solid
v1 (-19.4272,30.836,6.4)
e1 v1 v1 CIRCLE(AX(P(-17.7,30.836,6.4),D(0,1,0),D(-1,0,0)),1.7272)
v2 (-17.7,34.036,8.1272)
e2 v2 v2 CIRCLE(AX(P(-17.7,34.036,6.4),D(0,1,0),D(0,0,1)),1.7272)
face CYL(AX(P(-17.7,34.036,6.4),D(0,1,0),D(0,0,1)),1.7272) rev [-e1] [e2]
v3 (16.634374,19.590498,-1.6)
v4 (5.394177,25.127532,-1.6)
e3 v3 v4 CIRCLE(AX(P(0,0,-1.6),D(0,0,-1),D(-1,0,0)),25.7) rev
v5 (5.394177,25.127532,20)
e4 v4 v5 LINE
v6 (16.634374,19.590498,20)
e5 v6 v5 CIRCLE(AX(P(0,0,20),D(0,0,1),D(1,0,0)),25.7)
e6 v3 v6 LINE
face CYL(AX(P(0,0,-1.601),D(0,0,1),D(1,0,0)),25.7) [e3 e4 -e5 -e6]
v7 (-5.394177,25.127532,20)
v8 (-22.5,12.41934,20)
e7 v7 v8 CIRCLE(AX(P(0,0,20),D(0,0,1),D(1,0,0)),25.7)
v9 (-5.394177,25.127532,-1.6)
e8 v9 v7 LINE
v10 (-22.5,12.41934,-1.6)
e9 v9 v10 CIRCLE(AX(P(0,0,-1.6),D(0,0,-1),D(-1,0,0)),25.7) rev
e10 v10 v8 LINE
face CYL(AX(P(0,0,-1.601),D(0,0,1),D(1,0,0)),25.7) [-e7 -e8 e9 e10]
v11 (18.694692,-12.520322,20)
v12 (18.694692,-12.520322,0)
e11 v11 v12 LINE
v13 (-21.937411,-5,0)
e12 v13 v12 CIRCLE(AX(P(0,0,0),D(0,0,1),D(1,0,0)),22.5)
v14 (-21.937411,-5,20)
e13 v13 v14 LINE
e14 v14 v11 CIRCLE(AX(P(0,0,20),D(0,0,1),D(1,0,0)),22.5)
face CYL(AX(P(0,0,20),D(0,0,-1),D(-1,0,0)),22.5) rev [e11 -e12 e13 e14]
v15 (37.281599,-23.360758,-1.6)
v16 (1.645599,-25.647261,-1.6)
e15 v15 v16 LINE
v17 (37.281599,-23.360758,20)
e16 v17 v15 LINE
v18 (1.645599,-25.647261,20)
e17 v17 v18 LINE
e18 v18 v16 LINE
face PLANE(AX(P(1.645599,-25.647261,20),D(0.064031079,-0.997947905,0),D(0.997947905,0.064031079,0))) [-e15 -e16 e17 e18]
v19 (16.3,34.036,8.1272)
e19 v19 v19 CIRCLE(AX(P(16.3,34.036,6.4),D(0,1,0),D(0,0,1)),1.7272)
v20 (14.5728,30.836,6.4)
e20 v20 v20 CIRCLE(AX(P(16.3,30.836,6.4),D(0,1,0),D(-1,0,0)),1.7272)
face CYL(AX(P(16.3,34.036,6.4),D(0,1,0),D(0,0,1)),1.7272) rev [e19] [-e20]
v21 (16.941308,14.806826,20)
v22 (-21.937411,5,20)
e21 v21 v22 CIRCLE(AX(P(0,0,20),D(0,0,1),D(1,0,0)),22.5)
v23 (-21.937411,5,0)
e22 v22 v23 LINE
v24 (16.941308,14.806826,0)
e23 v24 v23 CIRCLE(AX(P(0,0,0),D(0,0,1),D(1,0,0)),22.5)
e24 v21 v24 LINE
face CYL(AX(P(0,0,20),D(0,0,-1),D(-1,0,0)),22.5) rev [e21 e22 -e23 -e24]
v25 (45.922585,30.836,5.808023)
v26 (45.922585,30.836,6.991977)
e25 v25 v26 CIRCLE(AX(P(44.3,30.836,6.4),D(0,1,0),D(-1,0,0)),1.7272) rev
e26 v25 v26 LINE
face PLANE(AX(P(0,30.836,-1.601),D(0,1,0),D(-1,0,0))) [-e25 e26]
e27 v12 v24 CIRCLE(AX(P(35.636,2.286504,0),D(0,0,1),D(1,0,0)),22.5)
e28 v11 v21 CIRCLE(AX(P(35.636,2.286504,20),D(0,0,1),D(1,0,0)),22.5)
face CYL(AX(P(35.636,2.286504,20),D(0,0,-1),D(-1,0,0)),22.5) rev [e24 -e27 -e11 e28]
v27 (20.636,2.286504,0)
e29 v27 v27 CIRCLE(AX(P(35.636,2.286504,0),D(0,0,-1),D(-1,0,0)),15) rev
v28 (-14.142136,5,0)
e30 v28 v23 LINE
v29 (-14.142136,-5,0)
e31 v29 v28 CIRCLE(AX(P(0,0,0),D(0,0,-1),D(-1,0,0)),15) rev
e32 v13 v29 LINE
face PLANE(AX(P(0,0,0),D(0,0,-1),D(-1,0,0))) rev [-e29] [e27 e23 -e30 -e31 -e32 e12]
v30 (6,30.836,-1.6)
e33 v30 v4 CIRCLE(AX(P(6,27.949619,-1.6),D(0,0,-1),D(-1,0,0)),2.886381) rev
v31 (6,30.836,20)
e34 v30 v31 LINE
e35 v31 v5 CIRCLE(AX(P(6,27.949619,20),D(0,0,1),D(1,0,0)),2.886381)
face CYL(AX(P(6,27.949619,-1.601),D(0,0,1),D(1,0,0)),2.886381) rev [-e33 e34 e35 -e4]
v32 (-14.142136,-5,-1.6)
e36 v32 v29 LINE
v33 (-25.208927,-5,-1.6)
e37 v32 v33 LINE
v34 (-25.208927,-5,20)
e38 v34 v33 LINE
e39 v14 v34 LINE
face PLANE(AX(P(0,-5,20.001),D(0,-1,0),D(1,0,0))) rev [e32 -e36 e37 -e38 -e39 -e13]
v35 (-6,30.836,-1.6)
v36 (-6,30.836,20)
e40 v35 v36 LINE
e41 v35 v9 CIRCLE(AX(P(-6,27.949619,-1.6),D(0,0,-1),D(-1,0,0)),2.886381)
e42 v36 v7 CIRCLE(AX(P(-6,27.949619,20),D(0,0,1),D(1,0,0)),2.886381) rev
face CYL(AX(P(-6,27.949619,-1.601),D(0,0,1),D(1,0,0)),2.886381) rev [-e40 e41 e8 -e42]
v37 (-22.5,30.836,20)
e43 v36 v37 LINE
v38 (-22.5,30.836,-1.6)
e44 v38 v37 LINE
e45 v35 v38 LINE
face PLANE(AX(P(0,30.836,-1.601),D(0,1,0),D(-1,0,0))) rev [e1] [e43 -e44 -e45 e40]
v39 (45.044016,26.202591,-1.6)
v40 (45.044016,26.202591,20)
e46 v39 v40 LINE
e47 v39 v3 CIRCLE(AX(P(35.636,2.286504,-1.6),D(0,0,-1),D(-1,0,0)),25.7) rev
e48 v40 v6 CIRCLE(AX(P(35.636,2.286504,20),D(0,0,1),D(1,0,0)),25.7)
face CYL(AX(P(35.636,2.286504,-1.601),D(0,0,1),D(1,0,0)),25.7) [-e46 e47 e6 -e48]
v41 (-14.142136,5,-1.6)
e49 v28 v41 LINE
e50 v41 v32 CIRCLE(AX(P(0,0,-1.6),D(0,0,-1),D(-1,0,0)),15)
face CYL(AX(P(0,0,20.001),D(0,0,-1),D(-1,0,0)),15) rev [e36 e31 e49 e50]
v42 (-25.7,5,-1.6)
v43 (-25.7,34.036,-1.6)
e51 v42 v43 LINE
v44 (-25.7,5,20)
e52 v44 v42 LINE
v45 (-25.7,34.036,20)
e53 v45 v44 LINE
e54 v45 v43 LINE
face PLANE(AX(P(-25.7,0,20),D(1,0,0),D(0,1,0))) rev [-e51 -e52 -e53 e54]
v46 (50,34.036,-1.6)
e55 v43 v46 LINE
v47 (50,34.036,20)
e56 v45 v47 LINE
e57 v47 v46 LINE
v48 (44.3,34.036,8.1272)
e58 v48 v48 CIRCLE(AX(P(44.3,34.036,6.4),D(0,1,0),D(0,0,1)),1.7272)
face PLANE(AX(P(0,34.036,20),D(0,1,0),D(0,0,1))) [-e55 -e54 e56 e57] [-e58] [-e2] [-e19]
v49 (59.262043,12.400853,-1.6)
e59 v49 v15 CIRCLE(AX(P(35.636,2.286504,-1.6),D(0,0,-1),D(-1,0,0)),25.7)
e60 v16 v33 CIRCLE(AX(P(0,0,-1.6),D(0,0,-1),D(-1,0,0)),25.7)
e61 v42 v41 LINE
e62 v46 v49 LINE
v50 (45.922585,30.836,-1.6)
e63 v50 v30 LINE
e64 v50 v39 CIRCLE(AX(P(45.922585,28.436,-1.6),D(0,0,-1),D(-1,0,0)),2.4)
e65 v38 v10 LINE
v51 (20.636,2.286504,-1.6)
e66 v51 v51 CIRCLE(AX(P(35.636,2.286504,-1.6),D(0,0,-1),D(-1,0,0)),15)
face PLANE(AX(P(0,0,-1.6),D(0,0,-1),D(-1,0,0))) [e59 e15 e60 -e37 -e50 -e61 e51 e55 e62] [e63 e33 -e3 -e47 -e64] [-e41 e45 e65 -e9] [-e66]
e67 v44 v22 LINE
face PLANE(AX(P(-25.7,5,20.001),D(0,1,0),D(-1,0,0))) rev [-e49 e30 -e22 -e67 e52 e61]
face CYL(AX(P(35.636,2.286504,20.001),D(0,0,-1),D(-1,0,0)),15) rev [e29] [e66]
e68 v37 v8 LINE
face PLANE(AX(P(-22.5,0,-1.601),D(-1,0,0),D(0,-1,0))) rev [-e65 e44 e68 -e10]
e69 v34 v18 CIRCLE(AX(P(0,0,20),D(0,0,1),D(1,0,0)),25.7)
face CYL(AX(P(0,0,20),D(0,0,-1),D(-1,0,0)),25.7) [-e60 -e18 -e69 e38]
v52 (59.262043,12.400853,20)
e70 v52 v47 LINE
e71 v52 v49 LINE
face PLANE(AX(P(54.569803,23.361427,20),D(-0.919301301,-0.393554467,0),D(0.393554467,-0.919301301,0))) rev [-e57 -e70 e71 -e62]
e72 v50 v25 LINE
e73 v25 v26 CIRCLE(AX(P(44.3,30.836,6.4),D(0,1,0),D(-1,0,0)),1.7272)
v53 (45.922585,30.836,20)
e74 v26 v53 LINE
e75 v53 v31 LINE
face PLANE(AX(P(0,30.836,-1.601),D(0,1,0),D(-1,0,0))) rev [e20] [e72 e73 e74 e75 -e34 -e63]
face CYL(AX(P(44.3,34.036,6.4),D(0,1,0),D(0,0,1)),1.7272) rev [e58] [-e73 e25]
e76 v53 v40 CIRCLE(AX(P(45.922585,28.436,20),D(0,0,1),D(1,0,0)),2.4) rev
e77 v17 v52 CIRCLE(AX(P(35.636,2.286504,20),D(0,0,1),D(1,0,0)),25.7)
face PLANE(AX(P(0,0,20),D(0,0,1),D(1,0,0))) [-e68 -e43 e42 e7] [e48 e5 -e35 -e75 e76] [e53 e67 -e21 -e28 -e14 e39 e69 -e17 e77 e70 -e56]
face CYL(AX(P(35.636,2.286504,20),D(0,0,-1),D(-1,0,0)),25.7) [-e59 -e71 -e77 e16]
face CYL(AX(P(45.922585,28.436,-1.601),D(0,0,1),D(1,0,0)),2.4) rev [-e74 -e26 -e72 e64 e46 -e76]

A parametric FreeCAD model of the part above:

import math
import FreeCAD as App
import Part
import Sketcher

doc = App.newDocument("Part")
body = doc.addObject("PartDesign::Body", "Body")

# Sketch on XY plane
sketch1 = body.newObject("Sketcher::SketchObject", "Sketch")
sketch1.AttachmentSupport = (doc.getObject("XY_Plane"), [""])
sketch1.MapMode = "FlatFace"
sketch1.addGeometry([
    Part.LineSegment(App.Vector(2, -26, 0), App.Vector(37, -23, 0)),  # 0
    Part.ArcOfCircle(Part.Circle(App.Vector(36, 2, 0), App.Vector(0, 0, 1), 26), math.radians(-86), math.radians(23)),  # 1
    Part.LineSegment(App.Vector(59, 12, 0), App.Vector(50, 34, 0)),  # 2
    Part.LineSegment(App.Vector(50, 34, 0), App.Vector(-26, 34, 0)),  # 3
    Part.LineSegment(App.Vector(-26, 34, 0), App.Vector(-26, 0, 0)),  # 4
    Part.ArcOfCircle(Part.Circle(App.Vector(0, 0, 0), App.Vector(0, 0, 1), 26), math.radians(-180), math.radians(-86)),  # 5
    Part.ArcOfCircle(Part.Circle(App.Vector(36, 2, 0), App.Vector(0, 0, 1), 22), math.radians(-139), math.radians(146)),  # 6
    Part.ArcOfCircle(Part.Circle(App.Vector(0, 0, 0), App.Vector(0, 0, 1), 22), math.radians(41), math.radians(326)),  # 7
], False)
sketch1.addConstraint([
    Sketcher.Constraint("Tangent", 0, 2, 1, 1),
    Sketcher.Constraint("Tangent", 1, 2, 2, 1),
    Sketcher.Constraint("Coincident", 2, 2, 3, 1),
    Sketcher.Constraint("Coincident", 3, 2, 4, 1),
    Sketcher.Constraint("Tangent", 4, 2, 5, 1),
    Sketcher.Constraint("Tangent", 5, 2, 0, 1),
    Sketcher.Constraint("Coincident", 6, 1, 7, 2),
    Sketcher.Constraint("Coincident", 7, 1, 6, 2),
    Sketcher.Constraint("Horizontal", 3),
    Sketcher.Constraint("Vertical", 4),
    Sketcher.Constraint("Coincident", 5, 3, -1, 1),
    Sketcher.Constraint("Coincident", 7, 3, -1, 1),
    Sketcher.Constraint("Coincident", 6, 3, 1, 3),
    Sketcher.Constraint("Equal", 1, 5),
    Sketcher.Constraint("Equal", 6, 7),
    Sketcher.Constraint("Radius", 1, 25.7),
    Sketcher.Constraint("Radius", 6, 22.5),
    Sketcher.Constraint("DistanceX", 3, 2, 3, 1, 75.7),
    Sketcher.Constraint("DistanceY", 4, 2, 4, 1, 34.036),
    Sketcher.Constraint("DistanceX", -1, 1, 1, 3, 35.636),
    Sketcher.Constraint("DistanceX", -1, 1, 0, 2, 37.281599),
])
pad1 = body.newObject("PartDesign::Pad", "Pad")
pad1.Profile = sketch1
pad1.Length = 20

# Sketch on XY plane
sketch2 = body.newObject("Sketcher::SketchObject", "Sketch001")
sketch2.AttachmentSupport = (doc.getObject("XY_Plane"), [""])
sketch2.MapMode = "FlatFace"
sketch2.AttachmentOffset = App.Placement(App.Vector(0, 0, -1.6), App.Rotation())
sketch2.addGeometry([
    Part.LineSegment(App.Vector(-26, 0, 0), App.Vector(-26, 34, 0)),  # 0
    Part.LineSegment(App.Vector(-26, 34, 0), App.Vector(50, 34, 0)),  # 1
    Part.LineSegment(App.Vector(50, 34, 0), App.Vector(59, 12, 0)),  # 2
    Part.ArcOfCircle(Part.Circle(App.Vector(36, 2, 0), App.Vector(0, 0, 1), 26), math.radians(-86), math.radians(23)),  # 3
    Part.LineSegment(App.Vector(37, -23, 0), App.Vector(2, -26, 0)),  # 4
    Part.ArcOfCircle(Part.Circle(App.Vector(0, 0, 0), App.Vector(0, 0, 1), 26), math.radians(-180), math.radians(-86)),  # 5
], False)
sketch2.addConstraint([
    Sketcher.Constraint("Coincident", 0, 2, 1, 1),
    Sketcher.Constraint("Coincident", 1, 2, 2, 1),
    Sketcher.Constraint("Tangent", 2, 2, 3, 2),
    Sketcher.Constraint("Tangent", 3, 1, 4, 1),
    Sketcher.Constraint("Tangent", 4, 2, 5, 2),
    Sketcher.Constraint("Tangent", 5, 1, 0, 1),
    Sketcher.Constraint("Vertical", 0),
    Sketcher.Constraint("Horizontal", 1),
    Sketcher.Constraint("Coincident", 5, 3, -1, 1),
    Sketcher.Constraint("Equal", 3, 5),
    Sketcher.Constraint("Radius", 3, 25.7),
    Sketcher.Constraint("DistanceX", 1, 1, 1, 2, 75.7),
    Sketcher.Constraint("DistanceY", 0, 1, 0, 2, 34.036),
    Sketcher.Constraint("DistanceX", -1, 1, 3, 3, 35.636),
    Sketcher.Constraint("DistanceX", -1, 1, 3, 1, 37.281599),
])
pad2 = body.newObject("PartDesign::Pad", "Pad001")
pad2.Profile = sketch2
pad2.Length = 1.6

# Sketch on XY plane
sketch3 = body.newObject("Sketcher::SketchObject", "Sketch002")
sketch3.AttachmentSupport = (doc.getObject("XY_Plane"), [""])
sketch3.MapMode = "FlatFace"
sketch3.AttachmentOffset = App.Placement(App.Vector(0, 0, 20), App.Rotation())
sketch3.addGeometry([
    Part.ArcOfCircle(Part.Circle(App.Vector(0, 0, 0), App.Vector(0, 0, 1), 25.7), math.radians(102), math.radians(151)),
    Part.ArcOfCircle(Part.Circle(App.Vector(-6, 27.9, 0), App.Vector(0, 0, 1), 2.9), math.radians(-78), math.radians(90)),
    Part.LineSegment(App.Vector(-6, 30.8, 0), App.Vector(-22.5, 30.8, 0)),
    Part.LineSegment(App.Vector(-22.5, 30.8, 0), App.Vector(-22.5, 12.4, 0)),
], False)
sketch3.addConstraint([
    Sketcher.Constraint("Tangent", 0, 1, 1, 1),
    Sketcher.Constraint("Tangent", 1, 2, 2, 1),
    Sketcher.Constraint("Coincident", 2, 2, 3, 1),
    Sketcher.Constraint("Coincident", 3, 2, 0, 2),
    Sketcher.Constraint("Horizontal", 2),
    Sketcher.Constraint("Vertical", 3),
    Sketcher.Constraint("Coincident", 0, 3, -1, 1),
    Sketcher.Constraint("Radius", 0, 25.7),
    Sketcher.Constraint("DistanceX", 2, 2, 2, 1, 16.5),
    Sketcher.Constraint("DistanceX", 1, 3, -1, 1, 6.0),
    Sketcher.Constraint("Radius", 1, 2.886381),
])
pocket1 = body.newObject("PartDesign::Pocket", "Pocket")
pocket1.Profile = sketch3
pocket1.Type = "UpToFirst"

# Sketch on XY plane
sketch4 = body.newObject("Sketcher::SketchObject", "Sketch003")
sketch4.AttachmentSupport = (doc.getObject("XY_Plane"), [""])
sketch4.MapMode = "FlatFace"
sketch4.AttachmentOffset = App.Placement(App.Vector(0, 0, 20), App.Rotation())
sketch4.addGeometry([
    Part.ArcOfCircle(Part.Circle(App.Vector(0, 0, 0), App.Vector(0, 0, 1), 25.7), math.radians(50), math.radians(78)),  # 0
    Part.ArcOfCircle(Part.Circle(App.Vector(35.6, 2.3, 0), App.Vector(0, 0, 1), 25.7), math.radians(69), math.radians(138)),  # 1
    Part.ArcOfCircle(Part.Circle(App.Vector(45.9, 28.4, 0), App.Vector(0, 0, 1), 2.4), math.radians(-111), math.radians(90)),  # 2
    Part.LineSegment(App.Vector(45.9, 30.8, 0), App.Vector(6, 30.8, 0)),  # 3
    Part.ArcOfCircle(Part.Circle(App.Vector(6, 27.9, 0), App.Vector(0, 0, 1), 2.9), math.radians(90), math.radians(258)),  # 4
], False)
sketch4.addConstraint([
    Sketcher.Constraint("Coincident", 0, 1, 1, 2),
    Sketcher.Constraint("Tangent", 1, 1, 2, 1),
    Sketcher.Constraint("Tangent", 2, 2, 3, 1),
    Sketcher.Constraint("Tangent", 3, 2, 4, 1),
    Sketcher.Constraint("Tangent", 4, 2, 0, 2),
    Sketcher.Constraint("Horizontal", 3),
    Sketcher.Constraint("Coincident", 0, 3, -1, 1),
    Sketcher.Constraint("Equal", 0, 1),
    Sketcher.Constraint("Radius", 0, 25.7),
    Sketcher.Constraint("Radius", 2, 2.4),
    Sketcher.Constraint("DistanceX", -1, 1, 4, 3, 6.0),
    Sketcher.Constraint("Radius", 4, 2.886381),
    Sketcher.Constraint("DistanceX", -1, 1, 1, 3, 35.636),
    Sketcher.Constraint("DistanceX", 3, 2, 3, 1, 39.922585),
])
pocket2 = body.newObject("PartDesign::Pocket", "Pocket001")
pocket2.Profile = sketch4
pocket2.Type = "UpToFirst"

# Sketch on XY plane
sketch5 = body.newObject("Sketcher::SketchObject", "Sketch004")
sketch5.AttachmentSupport = (doc.getObject("XY_Plane"), [""])
sketch5.MapMode = "FlatFace"
sketch5.AttachmentOffset = App.Placement(App.Vector(0, 0, -1.6), App.Rotation())
sketch5.addGeometry([
    Part.LineSegment(App.Vector(-26, 5, 0), App.Vector(0, 5, 0)),  # 0
    Part.ArcOfCircle(Part.Circle(App.Vector(0, 0, 0), App.Vector(0, 0, 1), 5), math.radians(-90), math.radians(90)),  # 1
    Part.LineSegment(App.Vector(0, -5, 0), App.Vector(-25, -5, 0)),  # 2
    Part.ArcOfCircle(Part.Circle(App.Vector(0, 0, 0), App.Vector(0, 0, 1), 26), math.radians(180), math.radians(191.22)),  # 3
    Part.LineSegment(App.Vector(-26, 0, 0), App.Vector(-26, 5, 0)),  # 4
], False)
sketch5.addConstraint([
    Sketcher.Constraint("Tangent", 0, 2, 1, 2),
    Sketcher.Constraint("Tangent", 1, 1, 2, 1),
    Sketcher.Constraint("Coincident", 2, 2, 3, 2),
    Sketcher.Constraint("Tangent", 3, 1, 4, 1),
    Sketcher.Constraint("Coincident", 4, 2, 0, 1),
    Sketcher.Constraint("Horizontal", 0),
    Sketcher.Constraint("Horizontal", 2),
    Sketcher.Constraint("Vertical", 4),
    Sketcher.Constraint("Coincident", 1, 3, -1, 1),
    Sketcher.Constraint("Coincident", 3, 3, -1, 1),
    Sketcher.Constraint("Radius", 1, 5.0),
    Sketcher.Constraint("Radius", 3, 25.7),
])
pocket3 = body.newObject("PartDesign::Pocket", "Pocket002")
pocket3.Profile = sketch5
pocket3.Length = 21.6
pocket3.Reversed = True

# Sketch on XY plane
sketch6 = body.newObject("Sketcher::SketchObject", "Sketch005")
sketch6.AttachmentSupport = (doc.getObject("XY_Plane"), [""])
sketch6.MapMode = "FlatFace"
sketch6.AttachmentOffset = App.Placement(App.Vector(0, 0, -1.6), App.Rotation())
sketch6.addGeometry(Part.Circle(App.Vector(36, 2, 0), App.Vector(0, 0, 1), 15), False)
sketch6.addConstraint([
    Sketcher.Constraint("Diameter", 0, 30.0),
    Sketcher.Constraint("DistanceX", -1, 1, 0, 3, 35.636),
    Sketcher.Constraint("DistanceY", -1, 1, 0, 3, 2.286504),
])
pocket4 = body.newObject("PartDesign::Pocket", "Pocket003")
pocket4.Profile = sketch6
pocket4.Type = "UpToFirst"
pocket4.Reversed = True

# Sketch on XY plane
sketch7 = body.newObject("Sketcher::SketchObject", "Sketch006")
sketch7.AttachmentSupport = (doc.getObject("XY_Plane"), [""])
sketch7.MapMode = "FlatFace"
sketch7.AttachmentOffset = App.Placement(App.Vector(0, 0, -1.6), App.Rotation())
sketch7.addGeometry(Part.Circle(App.Vector(0, 0, 0), App.Vector(0, 0, 1), 15), False)
sketch7.addConstraint([
    Sketcher.Constraint("Coincident", 0, 3, -1, 1),
    Sketcher.Constraint("Diameter", 0, 30.0),
])
pocket5 = body.newObject("PartDesign::Pocket", "Pocket004")
pocket5.Profile = sketch7
pocket5.Length = 1.6
pocket5.Reversed = True

# Sketch on XZ plane
sketch8 = body.newObject("Sketcher::SketchObject", "Sketch007")
sketch8.AttachmentSupport = (doc.getObject("XZ_Plane"), [""])
sketch8.MapMode = "FlatFace"
sketch8.AttachmentOffset = App.Placement(App.Vector(0, 0, -34.036), App.Rotation())
sketch8.addGeometry([
    Part.Circle(App.Vector(16.3, 6.4, 0), App.Vector(0, 0, 1), 1.7),
    Part.Circle(App.Vector(-17.7, 6.4, 0), App.Vector(0, 0, 1), 1.7),
    Part.Circle(App.Vector(44.3, 6.4, 0), App.Vector(0, 0, 1), 1.7),
], False)
sketch8.addConstraint([
    Sketcher.Constraint("Equal", 0, 1),
    Sketcher.Constraint("Equal", 1, 2),
    Sketcher.Constraint("Horizontal", 0, 3, 1, 3),
    Sketcher.Constraint("Horizontal", 1, 3, 2, 3),
    Sketcher.Constraint("DistanceX", 1, 3, 0, 3, 34.0),
    Sketcher.Constraint("DistanceX", 0, 3, 2, 3, 28.0),
    Sketcher.Constraint("Diameter", 0, 3.4544),
    Sketcher.Constraint("DistanceX", -1, 1, 0, 3, 16.3),
    Sketcher.Constraint("DistanceY", -1, 1, 0, 3, 6.4),
])
doc.recompute()
hole = body.newObject("PartDesign::Hole", "Hole")
hole.Profile = sketch8
hole.ThreadType = "None"
hole.Diameter = 3.4544
hole.DepthType = "Dimension"
hole.Depth = 3.2
hole.DrillPoint = "Flat"
hole.Reversed = True

doc.recompute()
